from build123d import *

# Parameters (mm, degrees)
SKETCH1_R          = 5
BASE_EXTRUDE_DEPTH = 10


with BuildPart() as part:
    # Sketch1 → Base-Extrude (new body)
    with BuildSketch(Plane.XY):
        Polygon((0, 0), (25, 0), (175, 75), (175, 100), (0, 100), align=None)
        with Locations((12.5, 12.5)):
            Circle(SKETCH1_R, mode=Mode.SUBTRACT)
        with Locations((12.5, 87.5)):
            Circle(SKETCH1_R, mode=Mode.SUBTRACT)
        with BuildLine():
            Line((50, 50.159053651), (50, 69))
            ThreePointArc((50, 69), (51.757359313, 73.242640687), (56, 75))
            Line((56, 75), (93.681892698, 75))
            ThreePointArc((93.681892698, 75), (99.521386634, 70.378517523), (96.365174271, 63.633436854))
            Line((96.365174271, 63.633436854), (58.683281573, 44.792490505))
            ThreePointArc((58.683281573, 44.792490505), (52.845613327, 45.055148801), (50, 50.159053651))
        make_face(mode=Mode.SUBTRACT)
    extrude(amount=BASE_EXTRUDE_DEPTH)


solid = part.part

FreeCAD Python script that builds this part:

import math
import FreeCAD as App
import Part
import Sketcher
from FreeCAD import Vector

doc = App.newDocument("Part")
params = doc.addObject("Spreadsheet::Sheet", "Params")
for row, (alias, value) in enumerate([
    ("sketch1_diameter", "10 mm"),
    ("sketch1_radius", "6 mm"),
    ("sketch1_width", "25 mm"),
    ("sketch1_width2", "175 mm"),
    ("sketch1_height", "100 mm"),
    ("pad1_length", "10 mm"),
], start=1):
    params.set(f"A{row}", alias)
    params.set(f"B{row}", "=" + value)
    params.setAlias(f"B{row}", alias)

body = doc.addObject("PartDesign::Body", "Body")

# Sketch on XY plane
sketch1 = body.newObject("Sketcher::SketchObject", "Sketch")
sketch1.AttachmentSupport = (doc.getObject("XY_Plane"), [""])
sketch1.MapMode = "FlatFace"
sketch1.addGeometry(Part.LineSegment(Vector(0, 0, 0), Vector(25, 0, 0)), False)
sketch1.addGeometry(Part.LineSegment(Vector(25, 0, 0), Vector(175, 75, 0)), False)
sketch1.addGeometry(Part.LineSegment(Vector(175, 75, 0), Vector(175, 100, 0)), False)
sketch1.addGeometry(Part.LineSegment(Vector(175, 100, 0), Vector(0, 100, 0)), False)
sketch1.addGeometry(Part.LineSegment(Vector(0, 100, 0), Vector(0, 0, 0)), False)
sketch1.addGeometry(Part.Circle(Vector(12, 12, 0), Vector(0, 0, 1), 5), False)
sketch1.addGeometry(Part.Circle(Vector(12, 88, 0), Vector(0, 0, 1), 5), False)
sketch1.addGeometry(Part.ArcOfCircle(Part.Circle(Vector(56, 50, 0), Vector(0, 0, 1), 6), math.radians(180), math.radians(297)), False)
sketch1.addGeometry(Part.LineSegment(Vector(50, 50, 0), Vector(50, 69, 0)), False)
sketch1.addGeometry(Part.ArcOfCircle(Part.Circle(Vector(56, 69, 0), Vector(0, 0, 1), 6), math.radians(90), math.radians(180)), False)
sketch1.addGeometry(Part.LineSegment(Vector(56, 75, 0), Vector(94, 75, 0)), False)
sketch1.addGeometry(Part.ArcOfCircle(Part.Circle(Vector(94, 69, 0), Vector(0, 0, 1), 6), math.radians(-63), math.radians(90)), False)
sketch1.addGeometry(Part.LineSegment(Vector(96, 64, 0), Vector(59, 45, 0)), False)
sketch1.addConstraint(Sketcher.Constraint("Coincident", 0, 2, 1, 1))
sketch1.addConstraint(Sketcher.Constraint("Coincident", 1, 2, 2, 1))
sketch1.addConstraint(Sketcher.Constraint("Coincident", 2, 2, 3, 1))
sketch1.addConstraint(Sketcher.Constraint("Coincident", 3, 2, 4, 1))
sketch1.addConstraint(Sketcher.Constraint("Coincident", 4, 2, 0, 1))
sketch1.addConstraint(Sketcher.Constraint("Tangent", 7, 1, 8, 1))
sketch1.addConstraint(Sketcher.Constraint("Tangent", 8, 2, 9, 2))
sketch1.addConstraint(Sketcher.Constraint("Tangent", 9, 1, 10, 1))
sketch1.addConstraint(Sketcher.Constraint("Tangent", 10, 2, 11, 2))
sketch1.addConstraint(Sketcher.Constraint("Tangent", 11, 1, 12, 1))
sketch1.addConstraint(Sketcher.Constraint("Tangent", 12, 2, 7, 2))
sketch1.addConstraint(Sketcher.Constraint("Horizontal", 0))
sketch1.addConstraint(Sketcher.Constraint("Vertical", 2))
sketch1.addConstraint(Sketcher.Constraint("Horizontal", 3))
sketch1.addConstraint(Sketcher.Constraint("Vertical", 4))
sketch1.addConstraint(Sketcher.Constraint("Vertical", 8))
sketch1.addConstraint(Sketcher.Constraint("Horizontal", 10))
sketch1.addConstraint(Sketcher.Constraint("Coincident", 4, 2, -1, 1))
sketch1.addConstraint(Sketcher.Constraint("Equal", 5, 6))
sketch1.addConstraint(Sketcher.Constraint("Equal", 7, 9))
sketch1.addConstraint(Sketcher.Constraint("Equal", 9, 11))
sketch1.addConstraint(Sketcher.Constraint("Parallel", 1, 12))
sketch1.addConstraint(Sketcher.Constraint("Horizontal", 1, 2, 9, 1))
sketch1.addConstraint(Sketcher.Constraint("Vertical", 5, 3, 6, 3))
sketch1.addConstraint(Sketcher.Constraint("Equal", 0, 2))
sketch1.addConstraint(Sketcher.Constraint("Diameter", 5, 10.0))
sketch1.addConstraint(Sketcher.Constraint("Radius", 7, 6.0))
sketch1.addConstraint(Sketcher.Constraint("DistanceX", 0, 1, 0, 2, 25.0))
sketch1.addConstraint(Sketcher.Constraint("DistanceX", 3, 2, 3, 1, 175.0))
sketch1.addConstraint(Sketcher.Constraint("DistanceY", 4, 2, 4, 1, 100.0))
sketch1.addConstraint(Sketcher.Constraint("DistanceX", -1, 1, 7, 3, 56.0))
sketch1.addConstraint(Sketcher.Constraint("DistanceY", 5, 3, 6, 3, 75.0))
sketch1.addConstraint(Sketcher.Constraint("DistanceX", -1, 1, 5, 3, 12.5))
sketch1.addConstraint(Sketcher.Constraint("DistanceY", -1, 1, 5, 3, 12.5))
sketch1.addConstraint(Sketcher.Constraint("DistanceX", 10, 1, 10, 2, 37.681893))
sketch1.setExpression("Constraints[25]", "Params.sketch1_diameter")
sketch1.setExpression("Constraints[26]", "Params.sketch1_radius")
sketch1.setExpression("Constraints[27]", "Params.sketch1_width")
sketch1.setExpression("Constraints[28]", "Params.sketch1_width2")
sketch1.setExpression("Constraints[29]", "Params.sketch1_height")
pad1 = body.newObject("PartDesign::Pad", "Pad")
pad1.Profile = sketch1
pad1.setExpression("Length", "Params.pad1_length")

doc.recompute()
